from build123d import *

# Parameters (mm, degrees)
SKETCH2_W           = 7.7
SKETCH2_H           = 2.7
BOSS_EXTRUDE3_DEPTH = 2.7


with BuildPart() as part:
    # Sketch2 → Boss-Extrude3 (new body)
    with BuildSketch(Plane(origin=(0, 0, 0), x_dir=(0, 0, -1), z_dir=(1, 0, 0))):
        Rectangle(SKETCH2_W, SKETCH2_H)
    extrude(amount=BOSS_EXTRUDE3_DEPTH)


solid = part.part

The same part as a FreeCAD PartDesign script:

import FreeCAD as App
import Part
import Sketcher
from FreeCAD import Vector


def add_polygon(sketch, points):
    """Adds a closed chain of lines whose ends are joined by coincident constraints."""
    first, n = sketch.GeometryCount, len(points)
    for a, b in zip(points, points[1:] + points[:1]):
        sketch.addGeometry(Part.LineSegment(App.Vector(*a, 0), App.Vector(*b, 0)), False)
    for i in range(n):
        sketch.addConstraint(Sketcher.Constraint("Coincident", first + i, 2, first + (i + 1) % n, 1))

doc = App.newDocument("Part")
body = doc.addObject("PartDesign::Body", "Body")

sketch1 = body.newObject("Sketcher::SketchObject", "Sketch")
sketch1.AttachmentSupport = (doc.getObject("YZ_Plane"), [""])
sketch1.MapMode = "FlatFace"
add_polygon(sketch1, [(1.4, 3.9), (-1.4, 3.9), (-1.4, -3.9), (1.4, -3.9)])
sketch1.addConstraint(Sketcher.Constraint("Horizontal", 0))
sketch1.addConstraint(Sketcher.Constraint("Vertical", 1))
sketch1.addConstraint(Sketcher.Constraint("Horizontal", 2))
sketch1.addConstraint(Sketcher.Constraint("Vertical", 3))
sketch1.addConstraint(Sketcher.Constraint("Symmetric", 0, 2, 2, 2, -1, 1))
sketch1.addConstraint(Sketcher.Constraint("DistanceX", 0, 2, 0, 1, 2.7))
sketch1.addConstraint(Sketcher.Constraint("DistanceY", 1, 2, 1, 1, 7.7))
pad1 = body.newObject("PartDesign::Pad", "Pad")
pad1.Profile = sketch1
pad1.Length = 2.7

doc.recompute()
